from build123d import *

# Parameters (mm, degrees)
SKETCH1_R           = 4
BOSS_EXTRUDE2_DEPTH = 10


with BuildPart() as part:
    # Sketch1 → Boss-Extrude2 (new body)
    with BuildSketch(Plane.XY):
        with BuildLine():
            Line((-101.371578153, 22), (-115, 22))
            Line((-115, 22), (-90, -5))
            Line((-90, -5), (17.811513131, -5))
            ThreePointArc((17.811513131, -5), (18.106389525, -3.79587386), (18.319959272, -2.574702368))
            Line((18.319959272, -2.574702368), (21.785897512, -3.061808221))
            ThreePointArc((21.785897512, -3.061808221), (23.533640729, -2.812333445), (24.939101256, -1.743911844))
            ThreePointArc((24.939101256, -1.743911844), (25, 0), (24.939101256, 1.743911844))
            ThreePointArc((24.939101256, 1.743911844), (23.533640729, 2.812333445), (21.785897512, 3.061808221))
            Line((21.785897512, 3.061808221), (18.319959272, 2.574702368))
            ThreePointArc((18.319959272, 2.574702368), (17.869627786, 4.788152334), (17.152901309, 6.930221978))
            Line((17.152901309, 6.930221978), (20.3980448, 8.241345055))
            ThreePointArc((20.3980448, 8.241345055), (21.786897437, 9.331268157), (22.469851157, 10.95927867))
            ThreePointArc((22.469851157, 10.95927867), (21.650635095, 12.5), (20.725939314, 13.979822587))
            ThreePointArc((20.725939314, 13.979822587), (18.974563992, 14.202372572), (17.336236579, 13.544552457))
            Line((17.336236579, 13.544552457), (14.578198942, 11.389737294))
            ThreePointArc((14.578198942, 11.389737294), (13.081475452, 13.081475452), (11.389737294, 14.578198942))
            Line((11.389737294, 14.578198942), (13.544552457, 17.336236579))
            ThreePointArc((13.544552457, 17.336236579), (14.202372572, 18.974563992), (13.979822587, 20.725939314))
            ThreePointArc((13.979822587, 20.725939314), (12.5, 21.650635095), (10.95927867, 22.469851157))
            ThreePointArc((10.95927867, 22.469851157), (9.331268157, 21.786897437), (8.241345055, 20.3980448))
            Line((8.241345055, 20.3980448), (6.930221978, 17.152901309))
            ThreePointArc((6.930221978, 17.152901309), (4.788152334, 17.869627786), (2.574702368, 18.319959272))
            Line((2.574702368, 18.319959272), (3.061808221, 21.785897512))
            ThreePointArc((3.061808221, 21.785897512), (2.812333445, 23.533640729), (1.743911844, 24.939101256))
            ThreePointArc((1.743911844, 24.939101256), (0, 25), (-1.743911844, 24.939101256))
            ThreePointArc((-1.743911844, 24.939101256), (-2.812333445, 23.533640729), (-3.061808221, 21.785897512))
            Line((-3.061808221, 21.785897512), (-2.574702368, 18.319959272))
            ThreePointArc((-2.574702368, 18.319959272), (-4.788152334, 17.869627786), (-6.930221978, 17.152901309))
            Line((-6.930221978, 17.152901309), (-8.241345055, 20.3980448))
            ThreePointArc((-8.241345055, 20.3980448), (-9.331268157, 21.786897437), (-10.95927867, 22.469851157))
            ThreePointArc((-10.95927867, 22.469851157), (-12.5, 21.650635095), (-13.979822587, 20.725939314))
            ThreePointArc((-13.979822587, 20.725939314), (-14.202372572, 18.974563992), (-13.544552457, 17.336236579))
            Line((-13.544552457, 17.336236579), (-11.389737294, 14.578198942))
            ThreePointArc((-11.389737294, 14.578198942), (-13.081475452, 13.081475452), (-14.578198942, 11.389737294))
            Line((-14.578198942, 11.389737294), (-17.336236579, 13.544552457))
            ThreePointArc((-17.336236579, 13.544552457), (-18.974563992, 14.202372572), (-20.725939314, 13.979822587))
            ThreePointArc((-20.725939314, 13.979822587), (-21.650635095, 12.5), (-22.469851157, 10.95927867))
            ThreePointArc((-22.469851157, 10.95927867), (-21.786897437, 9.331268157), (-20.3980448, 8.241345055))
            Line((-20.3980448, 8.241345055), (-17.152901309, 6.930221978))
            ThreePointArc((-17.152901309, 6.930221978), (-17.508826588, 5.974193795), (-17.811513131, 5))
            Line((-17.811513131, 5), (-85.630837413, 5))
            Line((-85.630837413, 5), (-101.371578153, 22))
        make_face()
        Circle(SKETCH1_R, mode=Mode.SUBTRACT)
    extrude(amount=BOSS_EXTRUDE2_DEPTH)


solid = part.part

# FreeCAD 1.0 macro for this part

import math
import FreeCAD as App
import Part
import Sketcher
Q = App.Units.Quantity

doc = App.newDocument("Part")
body = doc.addObject("PartDesign::Body", "Body")

# Sketch on XY plane
sketch1 = body.newObject("Sketcher::SketchObject", "Sketch")
sketch1.AttachmentSupport = (doc.getObject("XY_Plane"), [""])
sketch1.MapMode = "FlatFace"
sketch1.addGeometry(Part.LineSegment(App.Vector(-101.4, 22, 0), App.Vector(-115, 22, 0)), False)
sketch1.addGeometry(Part.LineSegment(App.Vector(-115, 22, 0), App.Vector(-90, -5, 0)), False)
sketch1.addGeometry(Part.LineSegment(App.Vector(-90, -5, 0), App.Vector(17.8, -5, 0)), False)
sketch1.addGeometry(Part.ArcOfCircle(Part.Circle(App.Vector(0, 0, 0), App.Vector(0, 0, 1), 18.5), math.radians(-15.68), math.radians(-8)), False)
sketch1.addGeometry(Part.LineSegment(App.Vector(18.3, -2.6, 0), App.Vector(21.8, -3.1, 0)), False)
sketch1.addGeometry(Part.ArcOfCircle(Part.Circle(App.Vector(22.2, 0.4, 0), App.Vector(0, 0, 1), 3.5), math.radians(-96), math.radians(-38)), False)
sketch1.addGeometry(Part.ArcOfCircle(Part.Circle(App.Vector(0, 0, 0), App.Vector(0, 0, 1), 25), math.radians(-4), math.radians(4)), False)
sketch1.addGeometry(Part.ArcOfCircle(Part.Circle(App.Vector(22.2, -0.4, 0), App.Vector(0, 0, 1), 3.5), math.radians(38), math.radians(96)), False)
sketch1.addGeometry(Part.LineSegment(App.Vector(21.8, 3.1, 0), App.Vector(18.3, 2.6, 0)), False)
sketch1.addGeometry(Part.ArcOfCircle(Part.Circle(App.Vector(0, 0, 0), App.Vector(0, 0, 1), 18.5), math.radians(8), math.radians(22)), False)
sketch1.addGeometry(Part.LineSegment(App.Vector(17.2, 6.9, 0), App.Vector(20.4, 8.2, 0)), False)
sketch1.addGeometry(Part.ArcOfCircle(Part.Circle(App.Vector(19, 11.5, 0), App.Vector(0, 0, 1), 3.5), math.radians(-66), math.radians(-8)), False)
sketch1.addGeometry(Part.ArcOfCircle(Part.Circle(App.Vector(0, 0, 0), App.Vector(0, 0, 1), 25), math.radians(26), math.radians(34)), False)
sketch1.addGeometry(Part.ArcOfCircle(Part.Circle(App.Vector(19.4, 10.7, 0), App.Vector(0, 0, 1), 3.5), math.radians(68), math.radians(126)), False)
sketch1.addGeometry(Part.LineSegment(App.Vector(17.3, 13.5, 0), App.Vector(14.6, 11.4, 0)), False)
sketch1.addGeometry(Part.ArcOfCircle(Part.Circle(App.Vector(0, 0, 0), App.Vector(0, 0, 1), 18.5), math.radians(38), math.radians(52)), False)
sketch1.addGeometry(Part.LineSegment(App.Vector(11.4, 14.6, 0), App.Vector(13.5, 17.3, 0)), False)
sketch1.addGeometry(Part.ArcOfCircle(Part.Circle(App.Vector(10.7, 19.4, 0), App.Vector(0, 0, 1), 3.5), math.radians(-36), math.radians(22)), False)
sketch1.addGeometry(Part.ArcOfCircle(Part.Circle(App.Vector(0, 0, 0), App.Vector(0, 0, 1), 25), math.radians(56), math.radians(64)), False)
sketch1.addGeometry(Part.ArcOfCircle(Part.Circle(App.Vector(11.5, 19, 0), App.Vector(0, 0, 1), 3.5), math.radians(98), math.radians(156)), False)
sketch1.addGeometry(Part.LineSegment(App.Vector(8.2, 20.4, 0), App.Vector(6.9, 17.2, 0)), False)
sketch1.addGeometry(Part.ArcOfCircle(Part.Circle(App.Vector(0, 0, 0), App.Vector(0, 0, 1), 18.5), math.radians(68), math.radians(82)), False)
sketch1.addGeometry(Part.LineSegment(App.Vector(2.6, 18.3, 0), App.Vector(3.1, 21.8, 0)), False)
sketch1.addGeometry(Part.ArcOfCircle(Part.Circle(App.Vector(-0.4, 22.2, 0), App.Vector(0, 0, 1), 3.5), math.radians(-6), math.radians(52)), False)
sketch1.addGeometry(Part.ArcOfCircle(Part.Circle(App.Vector(0, 0, 0), App.Vector(0, 0, 1), 25), math.radians(86), math.radians(94)), False)
sketch1.addGeometry(Part.ArcOfCircle(Part.Circle(App.Vector(0.4, 22.2, 0), App.Vector(0, 0, 1), 3.5), math.radians(128), math.radians(186)), False)
sketch1.addGeometry(Part.LineSegment(App.Vector(-3.1, 21.8, 0), App.Vector(-2.6, 18.3, 0)), False)
sketch1.addGeometry(Part.ArcOfCircle(Part.Circle(App.Vector(0, 0, 0), App.Vector(0, 0, 1), 18.5), math.radians(98), math.radians(112)), False)
sketch1.addGeometry(Part.LineSegment(App.Vector(-6.9, 17.2, 0), App.Vector(-8.2, 20.4, 0)), False)
sketch1.addGeometry(Part.ArcOfCircle(Part.Circle(App.Vector(-11.5, 19, 0), App.Vector(0, 0, 1), 3.5), math.radians(24), math.radians(82)), False)
sketch1.addGeometry(Part.ArcOfCircle(Part.Circle(App.Vector(0, 0, 0), App.Vector(0, 0, 1), 25), math.radians(116), math.radians(124)), False)
sketch1.addGeometry(Part.ArcOfCircle(Part.Circle(App.Vector(-10.7, 19.4, 0), App.Vector(0, 0, 1), 3.5), math.radians(158), math.radians(216)), False)
sketch1.addGeometry(Part.LineSegment(App.Vector(-13.5, 17.3, 0), App.Vector(-11.4, 14.6, 0)), False)
sketch1.addGeometry(Part.ArcOfCircle(Part.Circle(App.Vector(0, 0, 0), App.Vector(0, 0, 1), 18.5), math.radians(128), math.radians(142)), False)
sketch1.addGeometry(Part.LineSegment(App.Vector(-14.6, 11.4, 0), App.Vector(-17.3, 13.5, 0)), False)
sketch1.addGeometry(Part.ArcOfCircle(Part.Circle(App.Vector(-19.4, 10.7, 0), App.Vector(0, 0, 1), 3.5), math.radians(54), math.radians(112)), False)
sketch1.addGeometry(Part.ArcOfCircle(Part.Circle(App.Vector(0, 0, 0), App.Vector(0, 0, 1), 25), math.radians(146), math.radians(154)), False)
sketch1.addGeometry(Part.ArcOfCircle(Part.Circle(App.Vector(-19, 11.5, 0), App.Vector(0, 0, 1), 3.5), math.radians(-172), math.radians(-114)), False)
sketch1.addGeometry(Part.LineSegment(App.Vector(-20.4, 8.2, 0), App.Vector(-17.2, 6.9, 0)), False)
sketch1.addGeometry(Part.ArcOfCircle(Part.Circle(App.Vector(0, 0, 0), App.Vector(0, 0, 1), 18.5), math.radians(158), math.radians(164.32)), False)
sketch1.addGeometry(Part.LineSegment(App.Vector(-17.8, 5, 0), App.Vector(-85.6, 5, 0)), False)
sketch1.addGeometry(Part.LineSegment(App.Vector(-85.6, 5, 0), App.Vector(-101.4, 22, 0)), False)
sketch1.addGeometry(Part.Circle(App.Vector(0, 0, 0), App.Vector(0, 0, 1), 4), False)
sketch1.addConstraint(Sketcher.Constraint("Coincident", 0, 2, 1, 1))
sketch1.addConstraint(Sketcher.Constraint("Coincident", 1, 2, 2, 1))
sketch1.addConstraint(Sketcher.Constraint("Coincident", 2, 2, 3, 1))
sketch1.addConstraint(Sketcher.Constraint("Coincident", 3, 2, 4, 1))
sketch1.addConstraint(Sketcher.Constraint("Coincident", 4, 2, 5, 1))
sketch1.addConstraint(Sketcher.Constraint("Coincident", 5, 2, 6, 1))
sketch1.addConstraint(Sketcher.Constraint("Coincident", 6, 2, 7, 1))
sketch1.addConstraint(Sketcher.Constraint("Coincident", 7, 2, 8, 1))
sketch1.addConstraint(Sketcher.Constraint("Coincident", 8, 2, 9, 1))
sketch1.addConstraint(Sketcher.Constraint("Coincident", 9, 2, 10, 1))
sketch1.addConstraint(Sketcher.Constraint("Coincident", 10, 2, 11, 1))
sketch1.addConstraint(Sketcher.Constraint("Coincident", 11, 2, 12, 1))
sketch1.addConstraint(Sketcher.Constraint("Coincident", 12, 2, 13, 1))
sketch1.addConstraint(Sketcher.Constraint("Coincident", 13, 2, 14, 1))
sketch1.addConstraint(Sketcher.Constraint("Coincident", 14, 2, 15, 1))
sketch1.addConstraint(Sketcher.Constraint("Coincident", 15, 2, 16, 1))
sketch1.addConstraint(Sketcher.Constraint("Coincident", 16, 2, 17, 1))
sketch1.addConstraint(Sketcher.Constraint("Coincident", 17, 2, 18, 1))
sketch1.addConstraint(Sketcher.Constraint("Coincident", 18, 2, 19, 1))
sketch1.addConstraint(Sketcher.Constraint("Coincident", 19, 2, 20, 1))
sketch1.addConstraint(Sketcher.Constraint("Coincident", 20, 2, 21, 1))
sketch1.addConstraint(Sketcher.Constraint("Coincident", 21, 2, 22, 1))
sketch1.addConstraint(Sketcher.Constraint("Coincident", 22, 2, 23, 1))
sketch1.addConstraint(Sketcher.Constraint("Coincident", 23, 2, 24, 1))
sketch1.addConstraint(Sketcher.Constraint("Coincident", 24, 2, 25, 1))
sketch1.addConstraint(Sketcher.Constraint("Coincident", 25, 2, 26, 1))
sketch1.addConstraint(Sketcher.Constraint("Coincident", 26, 2, 27, 1))
sketch1.addConstraint(Sketcher.Constraint("Coincident", 27, 2, 28, 1))
sketch1.addConstraint(Sketcher.Constraint("Coincident", 28, 2, 29, 1))
sketch1.addConstraint(Sketcher.Constraint("Coincident", 29, 2, 30, 1))
sketch1.addConstraint(Sketcher.Constraint("Coincident", 30, 2, 31, 1))
sketch1.addConstraint(Sketcher.Constraint("Coincident", 31, 2, 32, 1))
sketch1.addConstraint(Sketcher.Constraint("Coincident", 32, 2, 33, 1))
sketch1.addConstraint(Sketcher.Constraint("Coincident", 33, 2, 34, 1))
sketch1.addConstraint(Sketcher.Constraint("Coincident", 34, 2, 35, 1))
sketch1.addConstraint(Sketcher.Constraint("Coincident", 35, 2, 36, 1))
sketch1.addConstraint(Sketcher.Constraint("Coincident", 36, 2, 37, 1))
sketch1.addConstraint(Sketcher.Constraint("Coincident", 37, 2, 38, 1))
sketch1.addConstraint(Sketcher.Constraint("Coincident", 38, 2, 39, 1))
sketch1.addConstraint(Sketcher.Constraint("Coincident", 39, 2, 40, 1))
sketch1.addConstraint(Sketcher.Constraint("Coincident", 40, 2, 41, 1))
sketch1.addConstraint(Sketcher.Constraint("Coincident", 41, 2, 0, 1))
sketch1.addConstraint(Sketcher.Constraint("Horizontal", 0))
sketch1.addConstraint(Sketcher.Constraint("Horizontal", 2))
sketch1.addConstraint(Sketcher.Constraint("Horizontal", 40))
sketch1.addConstraint(Sketcher.Constraint("Coincident", 3, 3, -1, 1))
sketch1.addConstraint(Sketcher.Constraint("Coincident", 6, 3, -1, 1))
sketch1.addConstraint(Sketcher.Constraint("Coincident", 9, 3, -1, 1))
sketch1.addConstraint(Sketcher.Constraint("Coincident", 12, 3, -1, 1))
sketch1.addConstraint(Sketcher.Constraint("Coincident", 15, 3, -1, 1))
sketch1.addConstraint(Sketcher.Constraint("Coincident", 18, 3, -1, 1))
sketch1.addConstraint(Sketcher.Constraint("Coincident", 21, 3, -1, 1))
sketch1.addConstraint(Sketcher.Constraint("Coincident", 24, 3, -1, 1))
sketch1.addConstraint(Sketcher.Constraint("Coincident", 27, 3, -1, 1))
sketch1.addConstraint(Sketcher.Constraint("Coincident", 30, 3, -1, 1))
sketch1.addConstraint(Sketcher.Constraint("Coincident", 33, 3, -1, 1))
sketch1.addConstraint(Sketcher.Constraint("Coincident", 36, 3, -1, 1))
sketch1.addConstraint(Sketcher.Constraint("Coincident", 39, 3, -1, 1))
sketch1.addConstraint(Sketcher.Constraint("Coincident", 42, 3, -1, 1))
sketch1.addConstraint(Sketcher.Constraint("Equal", 5, 7))
sketch1.addConstraint(Sketcher.Constraint("Equal", 3, 9))
sketch1.addConstraint(Sketcher.Constraint("Equal", 7, 11))
sketch1.addConstraint(Sketcher.Constraint("Equal", 6, 12))
sketch1.addConstraint(Sketcher.Constraint("Equal", 11, 13))
sketch1.addConstraint(Sketcher.Constraint("Equal", 9, 15))
sketch1.addConstraint(Sketcher.Constraint("Equal", 13, 17))
sketch1.addConstraint(Sketcher.Constraint("Equal", 12, 18))
sketch1.addConstraint(Sketcher.Constraint("Equal", 17, 19))
sketch1.addConstraint(Sketcher.Constraint("Equal", 15, 21))
sketch1.addConstraint(Sketcher.Constraint("Equal", 19, 23))
sketch1.addConstraint(Sketcher.Constraint("Equal", 18, 24))
sketch1.addConstraint(Sketcher.Constraint("Equal", 23, 25))
sketch1.addConstraint(Sketcher.Constraint("Equal", 21, 27))
sketch1.addConstraint(Sketcher.Constraint("Equal", 25, 29))
sketch1.addConstraint(Sketcher.Constraint("Equal", 24, 30))
sketch1.addConstraint(Sketcher.Constraint("Equal", 29, 31))
sketch1.addConstraint(Sketcher.Constraint("Equal", 27, 33))
sketch1.addConstraint(Sketcher.Constraint("Equal", 31, 35))
sketch1.addConstraint(Sketcher.Constraint("Equal", 30, 36))
sketch1.addConstraint(Sketcher.Constraint("Equal", 35, 37))
sketch1.addConstraint(Sketcher.Constraint("Equal", 33, 39))
sketch1.addConstraint(Sketcher.Constraint("Symmetric", 23, 3, 25, 3, -2))
sketch1.addConstraint(Sketcher.Constraint("Symmetric", 19, 3, 29, 3, -2))
sketch1.addConstraint(Sketcher.Constraint("Symmetric", 17, 3, 31, 3, -2))
sketch1.addConstraint(Sketcher.Constraint("Symmetric", 13, 3, 35, 3, -2))
sketch1.addConstraint(Sketcher.Constraint("Symmetric", 11, 3, 37, 3, -2))
sketch1.addConstraint(Sketcher.Constraint("Symmetric", 5, 3, 7, 3, -1))
sketch1.addConstraint(Sketcher.Constraint("Perpendicular", 4, 22))
sketch1.addConstraint(Sketcher.Constraint("Perpendicular", 8, 26))
sketch1.addConstraint(Sketcher.Constraint("Perpendicular", 10, 28))
sketch1.addConstraint(Sketcher.Constraint("Perpendicular", 14, 32))
sketch1.addConstraint(Sketcher.Constraint("Perpendicular", 16, 34))
sketch1.addConstraint(Sketcher.Constraint("Perpendicular", 20, 38))
sketch1.addConstraint(Sketcher.Constraint("Parallel", 1, 41))
sketch1.addConstraint(Sketcher.Constraint("Horizontal", 22, 2, 25, 2))
sketch1.addConstraint(Sketcher.Constraint("Horizontal", 21, 2, 26, 2))
sketch1.addConstraint(Sketcher.Constraint("Horizontal", 20, 2, 27, 2))
sketch1.addConstraint(Sketcher.Constraint("Horizontal", 19, 2, 28, 2))
sketch1.addConstraint(Sketcher.Constraint("Horizontal", 16, 2, 31, 2))
sketch1.addConstraint(Sketcher.Constraint("Horizontal", 15, 2, 32, 2))
sketch1.addConstraint(Sketcher.Constraint("Horizontal", 13, 2, 34, 2))
sketch1.addConstraint(Sketcher.Constraint("Horizontal", 10, 2, 37, 2))
sketch1.addConstraint(Sketcher.Constraint("Vertical", 4, 2, 7, 2))
sketch1.addConstraint(Sketcher.Constraint("Equal", 8, 10))
sketch1.addConstraint(Sketcher.Constraint("Equal", 10, 14))
sketch1.addConstraint(Sketcher.Constraint("Equal", 14, 16))
sketch1.addConstraint(Sketcher.Constraint("Equal", 16, 20))
sketch1.addConstraint(Sketcher.Constraint("Equal", 20, 22))
sketch1.addConstraint(Sketcher.Constraint("Diameter", 42, 8.0))
sketch1.addConstraint(Sketcher.Constraint("Radius", 6, 25.0))
sketch1.addConstraint(Sketcher.Constraint("Radius", 3, 18.5))
sketch1.addConstraint(Sketcher.Constraint("Angle", 4, Q("-8 deg")))
sketch1.addConstraint(Sketcher.Constraint("Angle", 10, Q("22 deg")))
sketch1.addConstraint(Sketcher.Constraint("Angle", 14, Q("-142 deg")))
sketch1.addConstraint(Sketcher.Constraint("DistanceX", 0, 2, -1, 1, 115.0))
sketch1.addConstraint(Sketcher.Constraint("DistanceY", -1, 1, 0, 2, 22.0))
sketch1.addConstraint(Sketcher.Constraint("DistanceX", 1, 2, -1, 1, 90.0))
sketch1.addConstraint(Sketcher.Constraint("DistanceY", 1, 2, -1, 1, 5.0))
sketch1.addConstraint(Sketcher.Constraint("DistanceY", -1, 1, 39, 2, 5.0))
sketch1.addConstraint(Sketcher.Constraint("Distance", 4, 3.5))
sketch1.addConstraint(Sketcher.Constraint("Radius", 5, 3.511547))
sketch1.addConstraint(Sketcher.Constraint("DistanceX", 0, 2, 0, 1, 13.628422))
sketch1.addConstraint(Sketcher.Constraint("DistanceX", -1, 1, 5, 2, 24.939101))
sketch1.addConstraint(Sketcher.Constraint("DistanceX", -1, 1, 9, 2, 17.152901))
sketch1.addConstraint(Sketcher.Constraint("DistanceX", -1, 1, 14, 2, 14.578199))
sketch1.addConstraint(Sketcher.Constraint("DistanceY", -1, 1, 15, 2, 14.578199))
sketch1.addConstraint(Sketcher.Constraint("DistanceY", -1, 1, 20, 2, 17.152901))
sketch1.addConstraint(Sketcher.Constraint("DistanceY", -1, 1, 23, 2, 24.939101))
sketch1.addConstraint(Sketcher.Constraint("DistanceX", -1, 1, 5, 3, 22.179491))
sketch1.addConstraint(Sketcher.Constraint("DistanceX", 23, 3, -1, 1, 0.427611))
sketch1.addConstraint(Sketcher.Constraint("DistanceX", -1, 1, 11, 2, 22.469851))
sketch1.addConstraint(Sketcher.Constraint("DistanceX", -1, 1, 12, 2, 20.725939))
sketch1.addConstraint(Sketcher.Constraint("DistanceY", -1, 1, 17, 2, 20.725939))
sketch1.addConstraint(Sketcher.Constraint("DistanceX", -1, 1, 18, 2, 10.959279))
pad1 = body.newObject("PartDesign::Pad", "Pad")
pad1.Profile = sketch1
pad1.Length = 10

doc.recompute()
